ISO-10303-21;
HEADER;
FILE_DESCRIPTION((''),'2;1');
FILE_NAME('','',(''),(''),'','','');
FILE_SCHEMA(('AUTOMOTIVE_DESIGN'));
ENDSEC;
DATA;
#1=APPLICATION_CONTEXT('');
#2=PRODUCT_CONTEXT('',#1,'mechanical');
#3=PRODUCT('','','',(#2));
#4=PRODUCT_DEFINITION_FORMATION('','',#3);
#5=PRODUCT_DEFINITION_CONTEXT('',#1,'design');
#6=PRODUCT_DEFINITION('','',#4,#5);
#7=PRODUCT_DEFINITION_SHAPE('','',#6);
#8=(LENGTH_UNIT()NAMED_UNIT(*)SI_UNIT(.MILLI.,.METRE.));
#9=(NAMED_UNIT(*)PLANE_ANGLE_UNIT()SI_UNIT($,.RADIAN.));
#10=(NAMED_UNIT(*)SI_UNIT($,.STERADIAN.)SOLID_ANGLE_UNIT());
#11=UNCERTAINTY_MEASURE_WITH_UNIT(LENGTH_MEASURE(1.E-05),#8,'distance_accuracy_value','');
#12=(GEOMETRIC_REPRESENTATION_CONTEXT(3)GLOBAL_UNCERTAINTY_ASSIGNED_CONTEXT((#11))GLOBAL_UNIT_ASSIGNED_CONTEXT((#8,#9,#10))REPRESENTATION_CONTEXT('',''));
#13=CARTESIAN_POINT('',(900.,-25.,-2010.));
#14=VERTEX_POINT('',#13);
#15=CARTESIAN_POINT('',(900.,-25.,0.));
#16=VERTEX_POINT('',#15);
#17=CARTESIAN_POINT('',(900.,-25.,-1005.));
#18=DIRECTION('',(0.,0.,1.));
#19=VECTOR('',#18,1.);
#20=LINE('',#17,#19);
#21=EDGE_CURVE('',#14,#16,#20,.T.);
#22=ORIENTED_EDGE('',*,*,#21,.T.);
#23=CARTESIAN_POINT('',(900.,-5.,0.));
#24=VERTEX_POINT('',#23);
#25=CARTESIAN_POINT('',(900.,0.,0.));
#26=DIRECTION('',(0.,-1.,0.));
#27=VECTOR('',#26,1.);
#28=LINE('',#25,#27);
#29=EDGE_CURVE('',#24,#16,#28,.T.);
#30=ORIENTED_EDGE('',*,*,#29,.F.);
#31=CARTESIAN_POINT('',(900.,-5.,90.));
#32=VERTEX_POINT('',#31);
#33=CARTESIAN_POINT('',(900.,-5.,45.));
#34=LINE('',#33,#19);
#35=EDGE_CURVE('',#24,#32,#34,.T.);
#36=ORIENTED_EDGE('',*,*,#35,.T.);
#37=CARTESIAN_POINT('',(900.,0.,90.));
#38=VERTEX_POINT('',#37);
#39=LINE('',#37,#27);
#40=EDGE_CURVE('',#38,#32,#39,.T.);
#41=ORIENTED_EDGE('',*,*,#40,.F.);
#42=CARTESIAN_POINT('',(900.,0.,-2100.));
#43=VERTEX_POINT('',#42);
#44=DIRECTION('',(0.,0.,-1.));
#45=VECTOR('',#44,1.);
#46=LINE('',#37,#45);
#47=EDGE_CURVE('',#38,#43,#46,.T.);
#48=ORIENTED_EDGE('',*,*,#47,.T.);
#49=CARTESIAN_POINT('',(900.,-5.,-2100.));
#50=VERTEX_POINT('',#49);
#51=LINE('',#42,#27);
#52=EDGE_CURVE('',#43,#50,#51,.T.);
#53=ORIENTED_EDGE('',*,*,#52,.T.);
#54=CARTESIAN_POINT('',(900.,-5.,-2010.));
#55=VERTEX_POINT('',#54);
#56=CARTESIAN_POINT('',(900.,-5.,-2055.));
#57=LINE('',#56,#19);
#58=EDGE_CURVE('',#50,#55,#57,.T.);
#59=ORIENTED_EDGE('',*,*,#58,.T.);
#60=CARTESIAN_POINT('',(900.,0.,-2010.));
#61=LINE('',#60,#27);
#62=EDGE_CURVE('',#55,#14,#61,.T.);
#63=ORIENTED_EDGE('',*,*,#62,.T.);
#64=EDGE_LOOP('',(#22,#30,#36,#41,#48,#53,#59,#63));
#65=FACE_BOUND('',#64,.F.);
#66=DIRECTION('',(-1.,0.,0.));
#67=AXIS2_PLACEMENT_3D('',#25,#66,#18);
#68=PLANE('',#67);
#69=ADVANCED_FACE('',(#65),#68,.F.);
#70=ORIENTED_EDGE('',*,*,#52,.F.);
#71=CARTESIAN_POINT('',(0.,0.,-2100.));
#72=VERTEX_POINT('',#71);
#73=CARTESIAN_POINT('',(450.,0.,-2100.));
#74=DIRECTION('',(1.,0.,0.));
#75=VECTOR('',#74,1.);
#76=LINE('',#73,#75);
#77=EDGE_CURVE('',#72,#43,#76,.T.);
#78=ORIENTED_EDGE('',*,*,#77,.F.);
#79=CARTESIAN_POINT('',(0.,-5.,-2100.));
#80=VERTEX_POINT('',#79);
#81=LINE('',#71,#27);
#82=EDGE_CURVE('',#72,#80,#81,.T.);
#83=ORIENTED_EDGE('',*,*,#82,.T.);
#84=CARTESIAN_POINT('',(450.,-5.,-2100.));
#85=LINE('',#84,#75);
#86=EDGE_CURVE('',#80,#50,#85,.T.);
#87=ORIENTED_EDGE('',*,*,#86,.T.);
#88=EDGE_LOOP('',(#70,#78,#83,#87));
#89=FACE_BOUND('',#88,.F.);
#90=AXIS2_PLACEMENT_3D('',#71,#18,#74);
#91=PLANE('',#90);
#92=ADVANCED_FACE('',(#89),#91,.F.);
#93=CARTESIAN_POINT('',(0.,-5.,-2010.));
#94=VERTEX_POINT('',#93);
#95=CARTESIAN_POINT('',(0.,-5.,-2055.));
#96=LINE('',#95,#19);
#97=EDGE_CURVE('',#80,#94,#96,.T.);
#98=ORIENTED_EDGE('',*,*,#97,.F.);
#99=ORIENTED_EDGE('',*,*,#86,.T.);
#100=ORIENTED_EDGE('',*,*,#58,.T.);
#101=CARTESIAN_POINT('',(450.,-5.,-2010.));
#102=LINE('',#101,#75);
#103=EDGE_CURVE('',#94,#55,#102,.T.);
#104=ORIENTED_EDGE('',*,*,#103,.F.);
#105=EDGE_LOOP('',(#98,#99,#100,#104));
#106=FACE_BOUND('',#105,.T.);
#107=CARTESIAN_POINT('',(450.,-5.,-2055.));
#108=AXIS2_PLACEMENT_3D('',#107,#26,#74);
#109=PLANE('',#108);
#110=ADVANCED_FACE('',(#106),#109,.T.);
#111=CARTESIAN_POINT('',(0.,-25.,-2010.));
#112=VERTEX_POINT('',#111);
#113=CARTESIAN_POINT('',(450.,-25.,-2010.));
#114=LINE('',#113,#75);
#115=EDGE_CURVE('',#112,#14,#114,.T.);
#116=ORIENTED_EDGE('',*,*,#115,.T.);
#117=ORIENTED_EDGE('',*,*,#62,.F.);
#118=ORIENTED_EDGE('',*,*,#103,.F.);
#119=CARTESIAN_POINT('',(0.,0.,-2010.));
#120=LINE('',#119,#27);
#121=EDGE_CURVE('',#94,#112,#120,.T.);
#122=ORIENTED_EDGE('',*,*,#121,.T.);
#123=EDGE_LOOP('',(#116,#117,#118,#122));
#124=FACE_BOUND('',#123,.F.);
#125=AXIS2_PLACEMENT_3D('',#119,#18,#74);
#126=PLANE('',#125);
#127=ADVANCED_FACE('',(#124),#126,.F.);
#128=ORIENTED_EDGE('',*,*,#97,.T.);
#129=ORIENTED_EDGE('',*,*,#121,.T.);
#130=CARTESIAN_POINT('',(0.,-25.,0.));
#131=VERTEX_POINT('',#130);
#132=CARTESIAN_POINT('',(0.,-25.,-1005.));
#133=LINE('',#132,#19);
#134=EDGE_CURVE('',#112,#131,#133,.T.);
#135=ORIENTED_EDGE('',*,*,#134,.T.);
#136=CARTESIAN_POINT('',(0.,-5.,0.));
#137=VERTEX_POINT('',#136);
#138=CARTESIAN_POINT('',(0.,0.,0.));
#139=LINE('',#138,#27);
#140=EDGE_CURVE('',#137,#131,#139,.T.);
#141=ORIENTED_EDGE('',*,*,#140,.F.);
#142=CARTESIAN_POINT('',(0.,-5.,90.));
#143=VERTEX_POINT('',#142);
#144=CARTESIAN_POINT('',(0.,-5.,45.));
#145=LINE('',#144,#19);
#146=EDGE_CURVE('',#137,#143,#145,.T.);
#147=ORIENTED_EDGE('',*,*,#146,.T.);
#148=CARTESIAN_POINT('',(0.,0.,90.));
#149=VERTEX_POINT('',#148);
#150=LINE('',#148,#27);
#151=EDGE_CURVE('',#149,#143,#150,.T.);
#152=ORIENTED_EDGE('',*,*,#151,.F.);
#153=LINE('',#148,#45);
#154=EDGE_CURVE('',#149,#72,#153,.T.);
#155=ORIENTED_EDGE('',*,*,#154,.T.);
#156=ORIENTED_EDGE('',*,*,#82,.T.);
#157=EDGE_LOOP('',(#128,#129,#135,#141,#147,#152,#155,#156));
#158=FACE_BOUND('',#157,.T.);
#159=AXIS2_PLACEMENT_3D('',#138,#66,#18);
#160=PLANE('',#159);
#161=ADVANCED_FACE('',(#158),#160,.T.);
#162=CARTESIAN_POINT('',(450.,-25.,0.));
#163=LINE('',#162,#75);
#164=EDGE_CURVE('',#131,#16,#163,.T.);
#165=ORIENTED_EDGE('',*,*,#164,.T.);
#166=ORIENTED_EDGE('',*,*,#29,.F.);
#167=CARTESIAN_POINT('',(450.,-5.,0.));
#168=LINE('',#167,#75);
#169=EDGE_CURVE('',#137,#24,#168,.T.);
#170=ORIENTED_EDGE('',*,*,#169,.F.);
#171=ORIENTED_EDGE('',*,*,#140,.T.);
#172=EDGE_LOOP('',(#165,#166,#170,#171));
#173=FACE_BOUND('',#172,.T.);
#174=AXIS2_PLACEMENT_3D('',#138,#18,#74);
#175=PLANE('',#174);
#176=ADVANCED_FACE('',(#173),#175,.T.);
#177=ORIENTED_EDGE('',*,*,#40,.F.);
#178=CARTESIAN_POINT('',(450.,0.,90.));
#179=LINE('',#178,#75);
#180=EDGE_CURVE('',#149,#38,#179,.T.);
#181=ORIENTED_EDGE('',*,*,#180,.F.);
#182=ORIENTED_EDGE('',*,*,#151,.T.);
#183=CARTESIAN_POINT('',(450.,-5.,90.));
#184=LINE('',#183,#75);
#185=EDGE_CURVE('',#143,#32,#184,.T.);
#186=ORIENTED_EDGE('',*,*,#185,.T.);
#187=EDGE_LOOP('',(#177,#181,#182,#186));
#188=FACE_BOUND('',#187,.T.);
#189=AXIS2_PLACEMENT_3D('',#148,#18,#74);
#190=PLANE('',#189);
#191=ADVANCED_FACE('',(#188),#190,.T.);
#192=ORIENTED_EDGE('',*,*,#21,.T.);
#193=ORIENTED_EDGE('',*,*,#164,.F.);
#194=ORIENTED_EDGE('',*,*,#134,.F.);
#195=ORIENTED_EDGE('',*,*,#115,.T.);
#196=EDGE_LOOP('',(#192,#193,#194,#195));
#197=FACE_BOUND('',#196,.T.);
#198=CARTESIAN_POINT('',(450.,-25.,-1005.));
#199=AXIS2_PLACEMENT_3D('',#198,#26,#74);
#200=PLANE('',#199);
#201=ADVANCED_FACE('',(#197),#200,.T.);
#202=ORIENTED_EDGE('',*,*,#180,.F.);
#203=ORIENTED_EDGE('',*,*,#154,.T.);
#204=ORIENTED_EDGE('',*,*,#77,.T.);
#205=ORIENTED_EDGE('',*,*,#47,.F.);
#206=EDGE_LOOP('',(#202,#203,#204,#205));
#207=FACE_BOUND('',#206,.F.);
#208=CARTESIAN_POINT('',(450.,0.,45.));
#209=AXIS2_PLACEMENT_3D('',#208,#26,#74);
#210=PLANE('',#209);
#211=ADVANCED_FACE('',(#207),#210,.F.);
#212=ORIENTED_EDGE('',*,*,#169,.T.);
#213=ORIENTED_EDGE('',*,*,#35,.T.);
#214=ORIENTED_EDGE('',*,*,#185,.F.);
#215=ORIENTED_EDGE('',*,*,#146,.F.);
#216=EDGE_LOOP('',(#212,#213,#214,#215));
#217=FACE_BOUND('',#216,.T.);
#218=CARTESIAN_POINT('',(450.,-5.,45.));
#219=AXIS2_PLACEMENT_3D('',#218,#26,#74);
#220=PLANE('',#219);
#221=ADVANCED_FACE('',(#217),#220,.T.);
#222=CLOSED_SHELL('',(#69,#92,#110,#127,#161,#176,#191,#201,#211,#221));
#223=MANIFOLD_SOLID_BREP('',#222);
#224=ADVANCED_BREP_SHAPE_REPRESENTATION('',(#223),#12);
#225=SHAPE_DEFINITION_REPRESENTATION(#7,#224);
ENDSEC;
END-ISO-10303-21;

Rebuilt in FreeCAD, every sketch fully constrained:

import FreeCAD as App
import Part
import Sketcher


def add_polygon(sketch, points):
    """Adds a closed chain of lines whose ends are joined by coincident constraints."""
    first, n = sketch.GeometryCount, len(points)
    for a, b in zip(points, points[1:] + points[:1]):
        sketch.addGeometry(Part.LineSegment(App.Vector(*a, 0), App.Vector(*b, 0)), False)
    for i in range(n):
        sketch.addConstraint(Sketcher.Constraint("Coincident", first + i, 2, first + (i + 1) % n, 1))

doc = App.newDocument("Part")
body = doc.addObject("PartDesign::Body", "Body")

# Sketch on XZ plane
sketch1 = body.newObject("Sketcher::SketchObject", "Sketch")
sketch1.AttachmentSupport = (doc.getObject("XZ_Plane"), [""])
sketch1.MapMode = "FlatFace"
add_polygon(sketch1, [(0, 0), (0, -2010), (900, -2010), (900, 0)])  # lines 0-3
sketch1.addConstraint([
    Sketcher.Constraint("Vertical", 0),
    Sketcher.Constraint("Horizontal", 1),
    Sketcher.Constraint("Vertical", 2),
    Sketcher.Constraint("Horizontal", 3),
    Sketcher.Constraint("Coincident", 3, 2, -1, 1),
    Sketcher.Constraint("DistanceX", 1, 1, 1, 2, 900.0),
    Sketcher.Constraint("DistanceY", 0, 2, 0, 1, 2010.0),
])
pad1 = body.newObject("PartDesign::Pad", "Pad")
pad1.Profile = sketch1
pad1.Length = 25

# Sketch on XZ plane
sketch2 = body.newObject("Sketcher::SketchObject", "Sketch001")
sketch2.AttachmentSupport = (doc.getObject("XZ_Plane"), [""])
sketch2.MapMode = "FlatFace"
add_polygon(sketch2, [(0, 90), (0, 0), (900, 0), (900, 90)])  # lines 0-3
add_polygon(sketch2, [(0, -2010), (0, -2100), (900, -2100), (900, -2010)])  # lines 4-7
sketch2.addConstraint([
    Sketcher.Constraint("Vertical", 0),
    Sketcher.Constraint("Horizontal", 1),
    Sketcher.Constraint("Vertical", 2),
    Sketcher.Constraint("Horizontal", 3),
    Sketcher.Constraint("Vertical", 4),
    Sketcher.Constraint("Horizontal", 5),
    Sketcher.Constraint("Vertical", 6),
    Sketcher.Constraint("Horizontal", 7),
    Sketcher.Constraint("Coincident", 0, 2, -1, 1),
    Sketcher.Constraint("PointOnObject", 4, 2, -2),
    Sketcher.Constraint("Vertical", 2, 2, 5, 2),
    Sketcher.Constraint("Equal", 2, 4),
    Sketcher.Constraint("DistanceX", 1, 1, 1, 2, 900.0),
    Sketcher.Constraint("DistanceY", 0, 2, 0, 1, 90.0),
    Sketcher.Constraint("DistanceY", 4, 2, -1, 1, 2100.0),
])
pad2 = body.newObject("PartDesign::Pad", "Pad001")
pad2.Profile = sketch2
pad2.Length = 5

doc.recompute()
